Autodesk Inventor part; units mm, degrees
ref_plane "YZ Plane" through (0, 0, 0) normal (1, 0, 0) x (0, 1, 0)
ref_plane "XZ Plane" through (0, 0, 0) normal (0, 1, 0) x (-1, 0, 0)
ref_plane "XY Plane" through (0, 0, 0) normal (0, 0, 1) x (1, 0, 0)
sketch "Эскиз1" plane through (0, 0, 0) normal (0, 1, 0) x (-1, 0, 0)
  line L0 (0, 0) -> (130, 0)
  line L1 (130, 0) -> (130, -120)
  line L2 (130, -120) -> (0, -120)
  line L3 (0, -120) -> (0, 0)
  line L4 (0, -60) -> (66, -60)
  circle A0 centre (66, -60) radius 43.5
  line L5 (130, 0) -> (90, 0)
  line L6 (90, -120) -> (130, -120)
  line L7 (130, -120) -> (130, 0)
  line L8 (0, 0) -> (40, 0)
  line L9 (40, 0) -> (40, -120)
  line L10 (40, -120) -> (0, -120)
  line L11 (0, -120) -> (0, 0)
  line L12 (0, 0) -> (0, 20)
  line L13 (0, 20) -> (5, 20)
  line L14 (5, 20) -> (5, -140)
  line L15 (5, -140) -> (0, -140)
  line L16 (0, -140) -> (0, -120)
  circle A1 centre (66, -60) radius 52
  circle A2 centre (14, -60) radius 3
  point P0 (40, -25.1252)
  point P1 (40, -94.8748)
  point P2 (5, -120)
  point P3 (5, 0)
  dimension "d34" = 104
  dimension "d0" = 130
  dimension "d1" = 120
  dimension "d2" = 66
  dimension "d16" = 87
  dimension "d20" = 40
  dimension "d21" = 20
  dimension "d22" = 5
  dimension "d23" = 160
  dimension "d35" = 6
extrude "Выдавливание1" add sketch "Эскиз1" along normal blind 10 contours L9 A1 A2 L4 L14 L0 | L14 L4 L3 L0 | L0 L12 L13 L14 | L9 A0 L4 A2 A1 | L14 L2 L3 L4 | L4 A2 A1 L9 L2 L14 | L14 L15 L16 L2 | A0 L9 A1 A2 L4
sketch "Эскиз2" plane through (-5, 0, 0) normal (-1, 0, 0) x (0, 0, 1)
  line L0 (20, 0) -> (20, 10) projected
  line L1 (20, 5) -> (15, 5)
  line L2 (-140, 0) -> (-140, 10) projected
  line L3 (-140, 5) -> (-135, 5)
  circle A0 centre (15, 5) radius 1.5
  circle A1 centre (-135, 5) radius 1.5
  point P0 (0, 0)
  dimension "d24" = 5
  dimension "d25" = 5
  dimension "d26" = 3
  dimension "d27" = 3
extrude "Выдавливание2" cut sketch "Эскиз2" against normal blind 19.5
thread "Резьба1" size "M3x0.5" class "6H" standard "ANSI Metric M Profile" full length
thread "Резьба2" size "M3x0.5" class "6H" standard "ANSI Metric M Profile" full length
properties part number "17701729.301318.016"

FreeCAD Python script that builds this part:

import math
import FreeCAD as App
import Part
import Sketcher
Q = App.Units.Quantity

doc = App.newDocument("Part")
body = doc.addObject("PartDesign::Body", "Body")

sketch1 = doc.addObject("Sketcher::SketchObject", "Sketch")
body.addObject(sketch1)
sketch1.AttachmentSupport = (doc.XZ_Plane, [""])
sketch1.MapMode = "FlatFace"
sketch1.addGeometry(Part.LineSegment(App.Vector(-40, 0, 0), App.Vector(-5, 0, 0)), False)
sketch1.addGeometry(Part.LineSegment(App.Vector(-5, 0, 0), App.Vector(-5, 20, 0)), False)
sketch1.addGeometry(Part.LineSegment(App.Vector(-5, 20, 0), App.Vector(0, 20, 0)), False)
sketch1.addGeometry(Part.LineSegment(App.Vector(0, 20, 0), App.Vector(0, -140, 0)), False)
sketch1.addGeometry(Part.LineSegment(App.Vector(0, -140, 0), App.Vector(-5, -140, 0)), False)
sketch1.addGeometry(Part.LineSegment(App.Vector(-5, -140, 0), App.Vector(-5, -120, 0)), False)
sketch1.addGeometry(Part.LineSegment(App.Vector(-5, -120, 0), App.Vector(-40, -120, 0)), False)
sketch1.addGeometry(Part.LineSegment(App.Vector(-40, -120, 0), App.Vector(-40, -94.874776, 0)), False)
sketch1.addGeometry(Part.ArcOfCircle(Part.Circle(App.Vector(-66, -60, 0), App.Vector(0, 0, 1), 43.5), math.radians(-53.294569), math.radians(53.294569)), False)
sketch1.addGeometry(Part.LineSegment(App.Vector(-40, -25.125224, 0), App.Vector(-40, 0, 0)), False)
sketch1.addGeometry(Part.Circle(App.Vector(-14, -60, 0), App.Vector(0, 0, 1), 3), False)
sketch1.addConstraint(Sketcher.Constraint("Coincident", 0, 2, 1, 1))
sketch1.addConstraint(Sketcher.Constraint("Coincident", 1, 2, 2, 1))
sketch1.addConstraint(Sketcher.Constraint("Coincident", 2, 2, 3, 1))
sketch1.addConstraint(Sketcher.Constraint("Coincident", 3, 2, 4, 1))
sketch1.addConstraint(Sketcher.Constraint("Coincident", 4, 2, 5, 1))
sketch1.addConstraint(Sketcher.Constraint("Coincident", 5, 2, 6, 1))
sketch1.addConstraint(Sketcher.Constraint("Coincident", 6, 2, 7, 1))
sketch1.addConstraint(Sketcher.Constraint("Coincident", 7, 2, 8, 1))
sketch1.addConstraint(Sketcher.Constraint("Coincident", 8, 2, 9, 1))
sketch1.addConstraint(Sketcher.Constraint("Coincident", 9, 2, 0, 1))
sketch1.addConstraint(Sketcher.Constraint("Horizontal", 0))
sketch1.addConstraint(Sketcher.Constraint("Vertical", 1))
sketch1.addConstraint(Sketcher.Constraint("Horizontal", 2))
sketch1.addConstraint(Sketcher.Constraint("Vertical", 3))
sketch1.addConstraint(Sketcher.Constraint("Horizontal", 4))
sketch1.addConstraint(Sketcher.Constraint("Vertical", 5))
sketch1.addConstraint(Sketcher.Constraint("Horizontal", 6))
sketch1.addConstraint(Sketcher.Constraint("Vertical", 7))
sketch1.addConstraint(Sketcher.Constraint("Vertical", 9))
sketch1.addConstraint(Sketcher.Constraint("PointOnObject", 0, 2, -1))
sketch1.addConstraint(Sketcher.Constraint("PointOnObject", 2, 2, -2))
sketch1.addConstraint(Sketcher.Constraint("Horizontal", 8, 3, 10, 3))
sketch1.addConstraint(Sketcher.Constraint("Vertical", 1, 2, 4, 2))
sketch1.addConstraint(Sketcher.Constraint("Vertical", 7, 2, 8, 2))
sketch1.addConstraint(Sketcher.Constraint("Equal", 1, 5))
sketch1.addConstraint(Sketcher.Constraint("Equal", 7, 9))
sketch1.addConstraint(Sketcher.Constraint("Diameter", 10, Q("6 mm")))
sketch1.addConstraint(Sketcher.Constraint("Radius", 8, Q("43.5 mm")))
sketch1.addConstraint(Sketcher.Constraint("DistanceX", 2, 1, 2, 2, Q("5 mm")))
sketch1.addConstraint(Sketcher.Constraint("DistanceY", 1, 1, 1, 2, Q("20 mm")))
sketch1.addConstraint(Sketcher.Constraint("DistanceY", 3, 2, 3, 1, Q("160 mm")))
sketch1.addConstraint(Sketcher.Constraint("DistanceX", 8, 3, -1, 1, Q("66 mm")))
sketch1.addConstraint(Sketcher.Constraint("DistanceX", 6, 2, -1, 1, Q("40 mm")))
sketch1.addConstraint(Sketcher.Constraint("DistanceX", 10, 3, -1, 1, Q("14 mm")))
pad1 = doc.addObject("PartDesign::Pad", "Pad")
body.addObject(pad1)
pad1.Profile = sketch1
pad1.Length = 10
pad1.Reversed = True

sketch2 = doc.addObject("Sketcher::SketchObject", "Sketch001")
body.addObject(sketch2)
sketch2.AttachmentSupport = (doc.YZ_Plane, [""])
sketch2.MapMode = "FlatFace"
sketch2.AttachmentOffset = App.Placement(App.Vector(0, 0, -5), App.Rotation())
sketch2.addGeometry(Part.Circle(App.Vector(5, 15, 0), App.Vector(0, 0, 1), 1.5), False)
sketch2.addGeometry(Part.Circle(App.Vector(5, -135, 0), App.Vector(0, 0, 1), 1.5), False)
sketch2.addConstraint(Sketcher.Constraint("Equal", 0, 1))
sketch2.addConstraint(Sketcher.Constraint("Vertical", 0, 3, 1, 3))
sketch2.addConstraint(Sketcher.Constraint("Diameter", 0, Q("3 mm")))
sketch2.addConstraint(Sketcher.Constraint("DistanceX", -1, 1, 0, 3, Q("5 mm")))
sketch2.addConstraint(Sketcher.Constraint("DistanceY", -1, 1, 0, 3, Q("15 mm")))
sketch2.addConstraint(Sketcher.Constraint("DistanceY", 1, 3, -1, 1, Q("135 mm")))
pocket1 = doc.addObject("PartDesign::Pocket", "Pocket")
body.addObject(pocket1)
pocket1.Profile = sketch2
pocket1.Length = 19.5
pocket1.Reversed = True

doc.recompute()
